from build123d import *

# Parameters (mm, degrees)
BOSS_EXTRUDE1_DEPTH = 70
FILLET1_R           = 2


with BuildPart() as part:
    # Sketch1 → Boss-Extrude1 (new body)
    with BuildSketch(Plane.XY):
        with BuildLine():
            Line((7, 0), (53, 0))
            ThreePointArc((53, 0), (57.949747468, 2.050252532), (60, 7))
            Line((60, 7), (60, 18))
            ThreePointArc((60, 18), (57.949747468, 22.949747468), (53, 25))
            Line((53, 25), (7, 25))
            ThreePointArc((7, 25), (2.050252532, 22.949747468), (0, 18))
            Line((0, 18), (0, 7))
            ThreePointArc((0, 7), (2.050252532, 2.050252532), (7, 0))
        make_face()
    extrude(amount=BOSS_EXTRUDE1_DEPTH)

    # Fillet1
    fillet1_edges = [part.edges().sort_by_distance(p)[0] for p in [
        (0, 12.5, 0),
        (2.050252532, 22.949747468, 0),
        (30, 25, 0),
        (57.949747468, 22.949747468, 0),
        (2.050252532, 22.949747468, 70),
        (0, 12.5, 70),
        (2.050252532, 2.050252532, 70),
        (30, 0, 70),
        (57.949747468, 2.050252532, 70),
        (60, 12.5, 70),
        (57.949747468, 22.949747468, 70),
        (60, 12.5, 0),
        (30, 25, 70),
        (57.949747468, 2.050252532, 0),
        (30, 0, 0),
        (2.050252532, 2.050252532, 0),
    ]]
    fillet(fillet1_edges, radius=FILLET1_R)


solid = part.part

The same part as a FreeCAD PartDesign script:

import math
import FreeCAD as App
import Part
import Sketcher

V = App.Vector


def edges_at(feature, points):
    """Names of the edges that pass closest to the given points."""
    edges = feature.Shape.Edges
    near = lambda p: min(range(len(edges)), key=lambda i: edges[i].distToShape(Part.Vertex(*p))[0])
    return sorted({f"Edge{near(p) + 1}" for p in points})

doc = App.newDocument("Part")
params = doc.addObject("Spreadsheet::Sheet", "Params")
for row, (alias, value) in enumerate([
    ("sketch1_radius", "7 mm"),
    ("sketch1_width", "46 mm"),
    ("sketch1_height", "11 mm"),
    ("pad1_length", "70 mm"),
    ("fillet_radius", "2 mm"),
], start=1):
    params.set(f"A{row}", alias)
    params.set(f"B{row}", "=" + value)
    params.setAlias(f"B{row}", alias)

body = doc.addObject("PartDesign::Body", "Body")

# Sketch on XY plane
sketch1 = body.newObject("Sketcher::SketchObject", "Sketch")
sketch1.AttachmentSupport = (doc.getObject("XY_Plane"), [""])
sketch1.MapMode = "FlatFace"
sketch1.addGeometry([
    Part.LineSegment(V(7, 0, 0), V(53, 0, 0)),  # 0
    Part.ArcOfCircle(Part.Circle(V(53, 7, 0), V(0, 0, 1), 7), math.radians(-90), math.radians(0)),  # 1
    Part.LineSegment(V(60, 7, 0), V(60, 18, 0)),  # 2
    Part.ArcOfCircle(Part.Circle(V(53, 18, 0), V(0, 0, 1), 7), math.radians(0), math.radians(90)),  # 3
    Part.LineSegment(V(53, 25, 0), V(7, 25, 0)),  # 4
    Part.ArcOfCircle(Part.Circle(V(7, 18, 0), V(0, 0, 1), 7), math.radians(90), math.radians(180)),  # 5
    Part.LineSegment(V(0, 18, 0), V(0, 7, 0)),  # 6
    Part.ArcOfCircle(Part.Circle(V(7, 7, 0), V(0, 0, 1), 7), math.radians(-180), math.radians(-90)),  # 7
], False)
sketch1.addConstraint([
    Sketcher.Constraint("Tangent", 0, 2, 1, 1),
    Sketcher.Constraint("Tangent", 1, 2, 2, 1),
    Sketcher.Constraint("Tangent", 2, 2, 3, 1),
    Sketcher.Constraint("Tangent", 3, 2, 4, 1),
    Sketcher.Constraint("Tangent", 4, 2, 5, 1),
    Sketcher.Constraint("Tangent", 5, 2, 6, 1),
    Sketcher.Constraint("Tangent", 6, 2, 7, 1),
    Sketcher.Constraint("Tangent", 7, 2, 0, 1),
    Sketcher.Constraint("Horizontal", 0),
    Sketcher.Constraint("Vertical", 2),
    Sketcher.Constraint("Horizontal", 4),
    Sketcher.Constraint("Vertical", 6),
    Sketcher.Constraint("Equal", 1, 3),
    Sketcher.Constraint("Equal", 3, 5),
    Sketcher.Constraint("Equal", 5, 7),
    Sketcher.Constraint("PointOnObject", 0, 2, -1),
    Sketcher.Constraint("PointOnObject", 5, 2, -2),
    Sketcher.Constraint("Radius", 1, 7.0),
    Sketcher.Constraint("DistanceX", 0, 1, 0, 2, 46.0),
    Sketcher.Constraint("DistanceY", 2, 1, 2, 2, 11.0),
])
sketch1.setExpression("Constraints[17]", "Params.sketch1_radius")
sketch1.setExpression("Constraints[18]", "Params.sketch1_width")
sketch1.setExpression("Constraints[19]", "Params.sketch1_height")
pad1 = body.newObject("PartDesign::Pad", "Pad")
pad1.Profile = sketch1
pad1.setExpression("Length", "Params.pad1_length")
doc.recompute()

fillet = body.newObject("PartDesign::Fillet", "Fillet")
fillet.Base = (pad1, edges_at(pad1, [
    (0, 12.5, 0),
    (2.05, 22.95, 0),
    (30, 25, 0),
    (57.95, 22.95, 0),
    (2.05, 22.95, 70),
    (0, 12.5, 70),
    (2.05, 2.05, 70),
    (30, 0, 70),
    (57.95, 2.05, 70),
    (60, 12.5, 70),
    (57.95, 22.95, 70),
    (60, 12.5, 0),
    (30, 25, 70),
    (57.95, 2.05, 0),
    (30, 0, 0),
    (2.05, 2.05, 0),
]))
fillet.setExpression("Radius", "Params.fillet_radius")

doc.recompute()
